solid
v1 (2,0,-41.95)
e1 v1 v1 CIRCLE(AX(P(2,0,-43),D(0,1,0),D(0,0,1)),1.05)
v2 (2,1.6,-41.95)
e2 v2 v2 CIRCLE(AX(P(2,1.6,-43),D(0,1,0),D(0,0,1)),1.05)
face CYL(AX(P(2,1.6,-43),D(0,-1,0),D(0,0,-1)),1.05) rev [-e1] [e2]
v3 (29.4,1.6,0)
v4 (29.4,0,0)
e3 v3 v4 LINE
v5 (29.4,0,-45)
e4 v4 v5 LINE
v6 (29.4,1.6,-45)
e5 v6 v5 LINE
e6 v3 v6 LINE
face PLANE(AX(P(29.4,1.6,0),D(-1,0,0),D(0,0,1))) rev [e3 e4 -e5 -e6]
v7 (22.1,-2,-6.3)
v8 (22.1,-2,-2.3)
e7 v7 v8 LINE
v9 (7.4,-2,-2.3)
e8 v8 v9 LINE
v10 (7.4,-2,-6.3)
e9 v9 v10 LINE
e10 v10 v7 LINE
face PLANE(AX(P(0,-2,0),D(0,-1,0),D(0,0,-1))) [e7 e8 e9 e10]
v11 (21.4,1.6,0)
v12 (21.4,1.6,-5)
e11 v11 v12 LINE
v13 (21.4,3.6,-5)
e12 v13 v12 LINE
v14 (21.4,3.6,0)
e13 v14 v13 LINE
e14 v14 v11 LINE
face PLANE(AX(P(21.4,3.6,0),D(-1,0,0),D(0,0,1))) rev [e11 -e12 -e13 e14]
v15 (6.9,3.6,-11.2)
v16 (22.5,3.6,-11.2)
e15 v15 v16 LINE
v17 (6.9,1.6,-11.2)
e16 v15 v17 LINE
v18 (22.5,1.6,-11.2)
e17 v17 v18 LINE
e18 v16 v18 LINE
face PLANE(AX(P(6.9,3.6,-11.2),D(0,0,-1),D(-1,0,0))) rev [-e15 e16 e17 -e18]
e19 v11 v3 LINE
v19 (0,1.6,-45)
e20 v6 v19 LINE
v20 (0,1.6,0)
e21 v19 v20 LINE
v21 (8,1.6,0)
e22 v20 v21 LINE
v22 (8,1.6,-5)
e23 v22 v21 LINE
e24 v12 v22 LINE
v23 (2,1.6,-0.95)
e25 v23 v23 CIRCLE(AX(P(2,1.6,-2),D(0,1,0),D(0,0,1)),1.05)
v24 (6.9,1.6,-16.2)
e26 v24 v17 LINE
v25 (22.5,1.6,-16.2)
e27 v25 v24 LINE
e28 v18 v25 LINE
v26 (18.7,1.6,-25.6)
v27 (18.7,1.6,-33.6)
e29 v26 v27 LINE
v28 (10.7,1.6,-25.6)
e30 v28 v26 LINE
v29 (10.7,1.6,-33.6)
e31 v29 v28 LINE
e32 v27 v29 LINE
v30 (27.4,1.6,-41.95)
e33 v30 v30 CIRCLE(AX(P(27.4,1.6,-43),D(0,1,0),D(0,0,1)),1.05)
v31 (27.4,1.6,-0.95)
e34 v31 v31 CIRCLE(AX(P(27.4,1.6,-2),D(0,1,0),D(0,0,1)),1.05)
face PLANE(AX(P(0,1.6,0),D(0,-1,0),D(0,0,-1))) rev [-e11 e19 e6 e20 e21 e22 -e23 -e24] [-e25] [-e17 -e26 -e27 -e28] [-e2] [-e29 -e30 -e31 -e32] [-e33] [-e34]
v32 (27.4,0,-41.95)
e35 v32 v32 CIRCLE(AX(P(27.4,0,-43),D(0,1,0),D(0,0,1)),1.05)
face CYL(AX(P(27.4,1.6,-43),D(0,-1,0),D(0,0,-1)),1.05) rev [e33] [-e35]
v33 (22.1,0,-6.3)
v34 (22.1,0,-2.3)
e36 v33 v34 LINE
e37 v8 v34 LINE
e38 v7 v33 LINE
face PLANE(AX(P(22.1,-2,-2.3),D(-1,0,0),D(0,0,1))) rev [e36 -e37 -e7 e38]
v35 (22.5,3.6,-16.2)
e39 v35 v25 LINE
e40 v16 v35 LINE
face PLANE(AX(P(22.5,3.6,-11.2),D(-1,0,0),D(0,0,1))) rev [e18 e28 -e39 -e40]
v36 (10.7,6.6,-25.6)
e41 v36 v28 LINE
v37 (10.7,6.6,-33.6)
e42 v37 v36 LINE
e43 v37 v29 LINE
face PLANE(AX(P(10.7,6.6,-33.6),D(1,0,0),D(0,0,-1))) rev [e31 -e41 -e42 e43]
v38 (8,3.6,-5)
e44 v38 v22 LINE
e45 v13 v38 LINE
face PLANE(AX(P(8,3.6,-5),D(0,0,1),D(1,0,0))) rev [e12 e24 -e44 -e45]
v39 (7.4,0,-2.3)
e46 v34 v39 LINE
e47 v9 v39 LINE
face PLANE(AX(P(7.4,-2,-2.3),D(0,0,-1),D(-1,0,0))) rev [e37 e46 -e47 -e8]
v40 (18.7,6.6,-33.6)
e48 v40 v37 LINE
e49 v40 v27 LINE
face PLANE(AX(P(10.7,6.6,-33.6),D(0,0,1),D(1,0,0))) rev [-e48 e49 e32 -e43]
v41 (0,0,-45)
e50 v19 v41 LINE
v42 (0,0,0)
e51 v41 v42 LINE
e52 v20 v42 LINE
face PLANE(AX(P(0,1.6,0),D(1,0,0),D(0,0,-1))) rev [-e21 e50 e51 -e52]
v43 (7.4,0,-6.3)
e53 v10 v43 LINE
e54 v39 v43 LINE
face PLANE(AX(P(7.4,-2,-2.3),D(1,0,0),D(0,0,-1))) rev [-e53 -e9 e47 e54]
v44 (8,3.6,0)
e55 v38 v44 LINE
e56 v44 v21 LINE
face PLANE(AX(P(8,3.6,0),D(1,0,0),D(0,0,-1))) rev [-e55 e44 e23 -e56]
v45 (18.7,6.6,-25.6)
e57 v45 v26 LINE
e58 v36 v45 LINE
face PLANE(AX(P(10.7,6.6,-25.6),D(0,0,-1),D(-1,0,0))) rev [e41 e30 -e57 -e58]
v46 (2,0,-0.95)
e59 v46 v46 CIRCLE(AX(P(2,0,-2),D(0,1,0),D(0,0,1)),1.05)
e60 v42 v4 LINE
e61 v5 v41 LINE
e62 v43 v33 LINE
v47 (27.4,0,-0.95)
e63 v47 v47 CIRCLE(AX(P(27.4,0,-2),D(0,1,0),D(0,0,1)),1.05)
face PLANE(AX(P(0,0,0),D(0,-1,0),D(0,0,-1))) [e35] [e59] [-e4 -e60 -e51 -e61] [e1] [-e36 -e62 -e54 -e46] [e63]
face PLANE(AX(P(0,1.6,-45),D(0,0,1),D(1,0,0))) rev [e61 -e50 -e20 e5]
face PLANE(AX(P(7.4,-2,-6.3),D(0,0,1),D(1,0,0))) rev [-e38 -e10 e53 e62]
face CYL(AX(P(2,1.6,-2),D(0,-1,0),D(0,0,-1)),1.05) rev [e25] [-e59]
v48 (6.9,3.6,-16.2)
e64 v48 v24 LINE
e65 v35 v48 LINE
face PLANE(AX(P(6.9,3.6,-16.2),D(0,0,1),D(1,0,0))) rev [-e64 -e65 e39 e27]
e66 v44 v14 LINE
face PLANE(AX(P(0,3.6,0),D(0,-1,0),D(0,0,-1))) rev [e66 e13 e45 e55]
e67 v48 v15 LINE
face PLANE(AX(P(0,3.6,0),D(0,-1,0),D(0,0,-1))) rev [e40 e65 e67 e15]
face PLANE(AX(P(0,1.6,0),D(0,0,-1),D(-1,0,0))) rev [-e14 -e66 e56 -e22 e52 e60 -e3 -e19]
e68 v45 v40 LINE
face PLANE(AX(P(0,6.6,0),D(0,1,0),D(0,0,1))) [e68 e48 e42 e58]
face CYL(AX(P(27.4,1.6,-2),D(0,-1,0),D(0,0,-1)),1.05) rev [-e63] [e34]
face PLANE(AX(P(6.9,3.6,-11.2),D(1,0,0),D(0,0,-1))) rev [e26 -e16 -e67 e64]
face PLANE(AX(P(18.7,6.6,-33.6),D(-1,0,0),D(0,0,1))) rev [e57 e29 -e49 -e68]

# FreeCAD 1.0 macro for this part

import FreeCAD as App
import Part
import Sketcher

V = App.Vector

doc = App.newDocument("Part")
body = doc.addObject("PartDesign::Body", "Body")

# Sketch on XZ plane
sketch1 = doc.addObject("Sketcher::SketchObject", "Sketch")
body.addObject(sketch1)
sketch1.AttachmentSupport = (doc.XZ_Plane, [""])
sketch1.MapMode = "FlatFace"
sketch1.addGeometry(Part.LineSegment(V(0, -45, 0), V(0, 0, 0)), False)
sketch1.addGeometry(Part.LineSegment(V(0, 0, 0), V(29.4, 0, 0)), False)
sketch1.addGeometry(Part.LineSegment(V(29.4, 0, 0), V(29.4, -45, 0)), False)
sketch1.addGeometry(Part.LineSegment(V(29.4, -45, 0), V(0, -45, 0)), False)
sketch1.addGeometry(Part.Circle(V(2, -2, 0), V(0, 0, 1), 1.1), False)
sketch1.addGeometry(Part.Circle(V(27.4, -2, 0), V(0, 0, 1), 1.1), False)
sketch1.addGeometry(Part.Circle(V(2, -43, 0), V(0, 0, 1), 1.1), False)
sketch1.addGeometry(Part.Circle(V(27.4, -43, 0), V(0, 0, 1), 1.1), False)
sketch1.addConstraint(Sketcher.Constraint("Coincident", 0, 2, 1, 1))
sketch1.addConstraint(Sketcher.Constraint("Coincident", 1, 2, 2, 1))
sketch1.addConstraint(Sketcher.Constraint("Coincident", 2, 2, 3, 1))
sketch1.addConstraint(Sketcher.Constraint("Coincident", 3, 2, 0, 1))
sketch1.addConstraint(Sketcher.Constraint("Vertical", 0))
sketch1.addConstraint(Sketcher.Constraint("Horizontal", 1))
sketch1.addConstraint(Sketcher.Constraint("Vertical", 2))
sketch1.addConstraint(Sketcher.Constraint("Horizontal", 3))
sketch1.addConstraint(Sketcher.Constraint("Coincident", 0, 2, -1, 1))
sketch1.addConstraint(Sketcher.Constraint("Equal", 4, 5))
sketch1.addConstraint(Sketcher.Constraint("Equal", 5, 6))
sketch1.addConstraint(Sketcher.Constraint("Equal", 6, 7))
sketch1.addConstraint(Sketcher.Constraint("Horizontal", 4, 3, 5, 3))
sketch1.addConstraint(Sketcher.Constraint("Horizontal", 6, 3, 7, 3))
sketch1.addConstraint(Sketcher.Constraint("Vertical", 4, 3, 6, 3))
sketch1.addConstraint(Sketcher.Constraint("Vertical", 5, 3, 7, 3))
sketch1.addConstraint(Sketcher.Constraint("Diameter", 4, 2.1))
sketch1.addConstraint(Sketcher.Constraint("DistanceY", 0, 1, 0, 2, 45.0))
sketch1.addConstraint(Sketcher.Constraint("DistanceX", 1, 1, 1, 2, 29.4))
sketch1.addConstraint(Sketcher.Constraint("DistanceX", -1, 1, 4, 3, 2.0))
sketch1.addConstraint(Sketcher.Constraint("DistanceY", 4, 3, -1, 1, 2.0))
sketch1.addConstraint(Sketcher.Constraint("DistanceY", 6, 3, -1, 1, 43.0))
sketch1.addConstraint(Sketcher.Constraint("DistanceX", 5, 3, 1, 2, 2.0))
pad1 = doc.addObject("PartDesign::Pad", "Pad")
body.addObject(pad1)
pad1.Profile = sketch1
pad1.Length = 1.6
pad1.Reversed = True

# Sketch on XZ plane
sketch2 = doc.addObject("Sketcher::SketchObject", "Sketch001")
body.addObject(sketch2)
sketch2.AttachmentSupport = (doc.XZ_Plane, [""])
sketch2.MapMode = "FlatFace"
sketch2.AttachmentOffset = App.Placement(V(0, 0, -1.6), App.Rotation())
sketch2.addGeometry(Part.LineSegment(V(8, -5, 0), V(8, 0, 0)), False)
sketch2.addGeometry(Part.LineSegment(V(8, 0, 0), V(21, 0, 0)), False)
sketch2.addGeometry(Part.LineSegment(V(21, 0, 0), V(21, -5, 0)), False)
sketch2.addGeometry(Part.LineSegment(V(21, -5, 0), V(8, -5, 0)), False)
sketch2.addGeometry(Part.LineSegment(V(7, -16, 0), V(7, -11, 0)), False)
sketch2.addGeometry(Part.LineSegment(V(7, -11, 0), V(22, -11, 0)), False)
sketch2.addGeometry(Part.LineSegment(V(22, -11, 0), V(22, -16, 0)), False)
sketch2.addGeometry(Part.LineSegment(V(22, -16, 0), V(7, -16, 0)), False)
sketch2.addConstraint(Sketcher.Constraint("Coincident", 0, 2, 1, 1))
sketch2.addConstraint(Sketcher.Constraint("Coincident", 1, 2, 2, 1))
sketch2.addConstraint(Sketcher.Constraint("Coincident", 2, 2, 3, 1))
sketch2.addConstraint(Sketcher.Constraint("Coincident", 3, 2, 0, 1))
sketch2.addConstraint(Sketcher.Constraint("Coincident", 4, 2, 5, 1))
sketch2.addConstraint(Sketcher.Constraint("Coincident", 5, 2, 6, 1))
sketch2.addConstraint(Sketcher.Constraint("Coincident", 6, 2, 7, 1))
sketch2.addConstraint(Sketcher.Constraint("Coincident", 7, 2, 4, 1))
sketch2.addConstraint(Sketcher.Constraint("Vertical", 0))
sketch2.addConstraint(Sketcher.Constraint("Horizontal", 1))
sketch2.addConstraint(Sketcher.Constraint("Vertical", 2))
sketch2.addConstraint(Sketcher.Constraint("Horizontal", 3))
sketch2.addConstraint(Sketcher.Constraint("Vertical", 4))
sketch2.addConstraint(Sketcher.Constraint("Horizontal", 5))
sketch2.addConstraint(Sketcher.Constraint("Vertical", 6))
sketch2.addConstraint(Sketcher.Constraint("Horizontal", 7))
sketch2.addConstraint(Sketcher.Constraint("PointOnObject", 0, 2, -1))
sketch2.addConstraint(Sketcher.Constraint("Equal", 2, 4))
sketch2.addConstraint(Sketcher.Constraint("DistanceY", 0, 1, 0, 2, 5.0))
sketch2.addConstraint(Sketcher.Constraint("DistanceX", 1, 1, 1, 2, 13.4))
sketch2.addConstraint(Sketcher.Constraint("DistanceX", 5, 1, 5, 2, 15.6))
sketch2.addConstraint(Sketcher.Constraint("DistanceX", -1, 1, 0, 2, 8.0))
sketch2.addConstraint(Sketcher.Constraint("DistanceX", -1, 1, 4, 2, 6.9))
sketch2.addConstraint(Sketcher.Constraint("DistanceY", 4, 2, -1, 1, 11.2))
pad2 = doc.addObject("PartDesign::Pad", "Pad001")
body.addObject(pad2)
pad2.Profile = sketch2
pad2.Length = 2
pad2.Reversed = True

# Sketch on XZ plane
sketch3 = doc.addObject("Sketcher::SketchObject", "Sketch002")
body.addObject(sketch3)
sketch3.AttachmentSupport = (doc.XZ_Plane, [""])
sketch3.MapMode = "FlatFace"
sketch3.addGeometry(Part.LineSegment(V(7.4, -2.3, 0), V(7.4, -6.3, 0)), False)
sketch3.addGeometry(Part.LineSegment(V(7.4, -6.3, 0), V(22.1, -6.3, 0)), False)
sketch3.addGeometry(Part.LineSegment(V(22.1, -6.3, 0), V(22.1, -2.3, 0)), False)
sketch3.addGeometry(Part.LineSegment(V(22.1, -2.3, 0), V(7.4, -2.3, 0)), False)
sketch3.addConstraint(Sketcher.Constraint("Coincident", 0, 2, 1, 1))
sketch3.addConstraint(Sketcher.Constraint("Coincident", 1, 2, 2, 1))
sketch3.addConstraint(Sketcher.Constraint("Coincident", 2, 2, 3, 1))
sketch3.addConstraint(Sketcher.Constraint("Coincident", 3, 2, 0, 1))
sketch3.addConstraint(Sketcher.Constraint("Vertical", 0))
sketch3.addConstraint(Sketcher.Constraint("Horizontal", 1))
sketch3.addConstraint(Sketcher.Constraint("Vertical", 2))
sketch3.addConstraint(Sketcher.Constraint("Horizontal", 3))
sketch3.addConstraint(Sketcher.Constraint("DistanceY", 0, 2, 0, 1, 4.0))
sketch3.addConstraint(Sketcher.Constraint("DistanceX", 1, 1, 1, 2, 14.7))
sketch3.addConstraint(Sketcher.Constraint("DistanceX", -1, 1, 0, 2, 7.4))
sketch3.addConstraint(Sketcher.Constraint("DistanceY", 0, 2, -1, 1, 6.3))
pad3 = doc.addObject("PartDesign::Pad", "Pad002")
body.addObject(pad3)
pad3.Profile = sketch3
pad3.Length = 2

# Sketch on XZ plane
sketch4 = doc.addObject("Sketcher::SketchObject", "Sketch003")
body.addObject(sketch4)
sketch4.AttachmentSupport = (doc.XZ_Plane, [""])
sketch4.MapMode = "FlatFace"
sketch4.AttachmentOffset = App.Placement(V(0, 0, -1.6), App.Rotation())
sketch4.addGeometry(Part.LineSegment(V(11, -34, 0), V(11, -26, 0)), False)
sketch4.addGeometry(Part.LineSegment(V(11, -26, 0), V(19, -26, 0)), False)
sketch4.addGeometry(Part.LineSegment(V(19, -26, 0), V(19, -34, 0)), False)
sketch4.addGeometry(Part.LineSegment(V(19, -34, 0), V(11, -34, 0)), False)
sketch4.addConstraint(Sketcher.Constraint("Coincident", 0, 2, 1, 1))
sketch4.addConstraint(Sketcher.Constraint("Coincident", 1, 2, 2, 1))
sketch4.addConstraint(Sketcher.Constraint("Coincident", 2, 2, 3, 1))
sketch4.addConstraint(Sketcher.Constraint("Coincident", 3, 2, 0, 1))
sketch4.addConstraint(Sketcher.Constraint("Vertical", 0))
sketch4.addConstraint(Sketcher.Constraint("Horizontal", 1))
sketch4.addConstraint(Sketcher.Constraint("Vertical", 2))
sketch4.addConstraint(Sketcher.Constraint("Horizontal", 3))
sketch4.addConstraint(Sketcher.Constraint("Equal", 3, 0))
sketch4.addConstraint(Sketcher.Constraint("DistanceX", 1, 1, 1, 2, 8.0))
sketch4.addConstraint(Sketcher.Constraint("DistanceX", -1, 1, 0, 2, 10.7))
sketch4.addConstraint(Sketcher.Constraint("DistanceY", 0, 2, -1, 1, 25.6))
pad4 = doc.addObject("PartDesign::Pad", "Pad003")
body.addObject(pad4)
pad4.Profile = sketch4
pad4.Length = 5
pad4.Reversed = True

doc.recompute()
